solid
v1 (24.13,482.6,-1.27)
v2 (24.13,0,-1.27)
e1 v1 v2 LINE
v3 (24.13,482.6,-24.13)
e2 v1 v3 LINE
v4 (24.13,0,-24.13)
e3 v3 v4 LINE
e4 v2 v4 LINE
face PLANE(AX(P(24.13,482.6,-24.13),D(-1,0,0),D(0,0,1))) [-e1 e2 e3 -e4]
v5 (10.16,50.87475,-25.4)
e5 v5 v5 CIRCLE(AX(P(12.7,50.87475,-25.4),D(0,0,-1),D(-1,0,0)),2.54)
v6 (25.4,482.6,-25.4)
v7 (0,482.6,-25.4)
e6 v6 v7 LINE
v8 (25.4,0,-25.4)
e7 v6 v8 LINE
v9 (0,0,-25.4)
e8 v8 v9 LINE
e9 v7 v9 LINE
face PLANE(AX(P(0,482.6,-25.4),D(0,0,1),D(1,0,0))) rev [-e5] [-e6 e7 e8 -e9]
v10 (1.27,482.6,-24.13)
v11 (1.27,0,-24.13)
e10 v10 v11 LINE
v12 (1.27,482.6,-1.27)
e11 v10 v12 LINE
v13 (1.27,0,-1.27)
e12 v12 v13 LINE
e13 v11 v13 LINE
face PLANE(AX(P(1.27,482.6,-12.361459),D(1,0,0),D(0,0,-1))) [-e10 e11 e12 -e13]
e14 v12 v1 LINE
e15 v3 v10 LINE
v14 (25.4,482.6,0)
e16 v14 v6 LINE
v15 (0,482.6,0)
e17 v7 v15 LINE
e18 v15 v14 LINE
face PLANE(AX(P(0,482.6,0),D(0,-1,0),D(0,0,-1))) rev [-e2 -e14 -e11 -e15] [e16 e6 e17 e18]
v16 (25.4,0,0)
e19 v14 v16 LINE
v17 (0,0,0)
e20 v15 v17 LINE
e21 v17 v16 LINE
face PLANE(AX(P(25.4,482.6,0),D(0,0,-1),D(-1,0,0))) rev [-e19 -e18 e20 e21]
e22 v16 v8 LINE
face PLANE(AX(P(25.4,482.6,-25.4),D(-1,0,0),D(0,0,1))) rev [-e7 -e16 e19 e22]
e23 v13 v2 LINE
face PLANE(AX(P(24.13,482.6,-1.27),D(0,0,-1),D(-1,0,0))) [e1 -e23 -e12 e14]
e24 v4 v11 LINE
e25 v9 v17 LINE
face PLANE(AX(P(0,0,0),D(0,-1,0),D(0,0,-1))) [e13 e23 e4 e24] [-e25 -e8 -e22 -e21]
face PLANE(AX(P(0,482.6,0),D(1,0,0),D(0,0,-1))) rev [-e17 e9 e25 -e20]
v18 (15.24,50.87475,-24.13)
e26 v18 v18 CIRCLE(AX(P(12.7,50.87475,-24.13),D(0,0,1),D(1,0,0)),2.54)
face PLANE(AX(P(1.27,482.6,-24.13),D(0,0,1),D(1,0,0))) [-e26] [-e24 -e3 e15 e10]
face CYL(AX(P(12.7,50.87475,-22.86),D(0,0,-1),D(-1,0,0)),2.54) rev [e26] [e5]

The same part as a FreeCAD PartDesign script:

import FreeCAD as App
import Part
import Sketcher
Q = App.Units.Quantity

doc = App.newDocument("Part")
body = doc.addObject("PartDesign::Body", "Body")

# Sketch on XZ plane
sketch1 = body.newObject("Sketcher::SketchObject", "Sketch")
sketch1.AttachmentSupport = (doc.getObject("XZ_Plane"), [""])
sketch1.MapMode = "FlatFace"
sketch1.addGeometry([
    Part.LineSegment(App.Vector(0, -25.4, 0), App.Vector(0, 0, 0)),  # 0
    Part.LineSegment(App.Vector(0, 0, 0), App.Vector(25.4, 0, 0)),  # 1
    Part.LineSegment(App.Vector(25.4, 0, 0), App.Vector(25.4, -25.4, 0)),  # 2
    Part.LineSegment(App.Vector(25.4, -25.4, 0), App.Vector(0, -25.4, 0)),  # 3
    Part.LineSegment(App.Vector(1.27, -1.27, 0), App.Vector(1.27, -24.13, 0)),  # 4
    Part.LineSegment(App.Vector(1.27, -24.13, 0), App.Vector(24.13, -24.13, 0)),  # 5
    Part.LineSegment(App.Vector(24.13, -24.13, 0), App.Vector(24.13, -1.27, 0)),  # 6
    Part.LineSegment(App.Vector(24.13, -1.27, 0), App.Vector(1.27, -1.27, 0)),  # 7
], False)
sketch1.addConstraint([
    Sketcher.Constraint("Coincident", 0, 2, 1, 1),
    Sketcher.Constraint("Coincident", 1, 2, 2, 1),
    Sketcher.Constraint("Coincident", 2, 2, 3, 1),
    Sketcher.Constraint("Coincident", 3, 2, 0, 1),
    Sketcher.Constraint("Coincident", 4, 2, 5, 1),
    Sketcher.Constraint("Coincident", 5, 2, 6, 1),
    Sketcher.Constraint("Coincident", 6, 2, 7, 1),
    Sketcher.Constraint("Coincident", 7, 2, 4, 1),
    Sketcher.Constraint("Vertical", 0),
    Sketcher.Constraint("Horizontal", 1),
    Sketcher.Constraint("Vertical", 2),
    Sketcher.Constraint("Horizontal", 3),
    Sketcher.Constraint("Vertical", 4),
    Sketcher.Constraint("Horizontal", 5),
    Sketcher.Constraint("Vertical", 6),
    Sketcher.Constraint("Horizontal", 7),
    Sketcher.Constraint("Coincident", 0, 2, -1, 1),
    Sketcher.Constraint("Equal", 3, 0),
    Sketcher.Constraint("Equal", 7, 4),
    Sketcher.Constraint("DistanceX", 1, 1, 1, 2, Q("1 in")),
    Sketcher.Constraint("DistanceX", 5, 1, 5, 2, Q("0.9 in")),
    Sketcher.Constraint("DistanceX", -1, 1, 4, 2, Q("0.05 in")),
    Sketcher.Constraint("DistanceY", 4, 2, -1, 1, Q("0.95 in")),
])
pad1 = body.newObject("PartDesign::Pad", "Pad")
pad1.Profile = sketch1
pad1.Length = Q("19 in")
pad1.Reversed = True

# Sketch on XY plane
sketch2 = body.newObject("Sketcher::SketchObject", "Sketch001")
sketch2.AttachmentSupport = (doc.getObject("XY_Plane"), [""])
sketch2.MapMode = "FlatFace"
sketch2.AttachmentOffset = App.Placement(App.Vector(0, 0, -1 * 25.4), App.Rotation())
sketch2.addGeometry(Part.Circle(App.Vector(12.7, 50.87475, 0), App.Vector(0, 0, 1), 2.54), False)
sketch2.addConstraint([
    Sketcher.Constraint("Diameter", 0, Q("0.2 in")),
    Sketcher.Constraint("DistanceX", -1, 1, 0, 3, Q("0.5 in")),
    Sketcher.Constraint("DistanceY", -1, 1, 0, 3, 50.87475),
])
pocket1 = body.newObject("PartDesign::Pocket", "Pocket")
pocket1.Profile = sketch2
pocket1.Length = Q("0.1 in")
pocket1.Reversed = True

doc.recompute()
